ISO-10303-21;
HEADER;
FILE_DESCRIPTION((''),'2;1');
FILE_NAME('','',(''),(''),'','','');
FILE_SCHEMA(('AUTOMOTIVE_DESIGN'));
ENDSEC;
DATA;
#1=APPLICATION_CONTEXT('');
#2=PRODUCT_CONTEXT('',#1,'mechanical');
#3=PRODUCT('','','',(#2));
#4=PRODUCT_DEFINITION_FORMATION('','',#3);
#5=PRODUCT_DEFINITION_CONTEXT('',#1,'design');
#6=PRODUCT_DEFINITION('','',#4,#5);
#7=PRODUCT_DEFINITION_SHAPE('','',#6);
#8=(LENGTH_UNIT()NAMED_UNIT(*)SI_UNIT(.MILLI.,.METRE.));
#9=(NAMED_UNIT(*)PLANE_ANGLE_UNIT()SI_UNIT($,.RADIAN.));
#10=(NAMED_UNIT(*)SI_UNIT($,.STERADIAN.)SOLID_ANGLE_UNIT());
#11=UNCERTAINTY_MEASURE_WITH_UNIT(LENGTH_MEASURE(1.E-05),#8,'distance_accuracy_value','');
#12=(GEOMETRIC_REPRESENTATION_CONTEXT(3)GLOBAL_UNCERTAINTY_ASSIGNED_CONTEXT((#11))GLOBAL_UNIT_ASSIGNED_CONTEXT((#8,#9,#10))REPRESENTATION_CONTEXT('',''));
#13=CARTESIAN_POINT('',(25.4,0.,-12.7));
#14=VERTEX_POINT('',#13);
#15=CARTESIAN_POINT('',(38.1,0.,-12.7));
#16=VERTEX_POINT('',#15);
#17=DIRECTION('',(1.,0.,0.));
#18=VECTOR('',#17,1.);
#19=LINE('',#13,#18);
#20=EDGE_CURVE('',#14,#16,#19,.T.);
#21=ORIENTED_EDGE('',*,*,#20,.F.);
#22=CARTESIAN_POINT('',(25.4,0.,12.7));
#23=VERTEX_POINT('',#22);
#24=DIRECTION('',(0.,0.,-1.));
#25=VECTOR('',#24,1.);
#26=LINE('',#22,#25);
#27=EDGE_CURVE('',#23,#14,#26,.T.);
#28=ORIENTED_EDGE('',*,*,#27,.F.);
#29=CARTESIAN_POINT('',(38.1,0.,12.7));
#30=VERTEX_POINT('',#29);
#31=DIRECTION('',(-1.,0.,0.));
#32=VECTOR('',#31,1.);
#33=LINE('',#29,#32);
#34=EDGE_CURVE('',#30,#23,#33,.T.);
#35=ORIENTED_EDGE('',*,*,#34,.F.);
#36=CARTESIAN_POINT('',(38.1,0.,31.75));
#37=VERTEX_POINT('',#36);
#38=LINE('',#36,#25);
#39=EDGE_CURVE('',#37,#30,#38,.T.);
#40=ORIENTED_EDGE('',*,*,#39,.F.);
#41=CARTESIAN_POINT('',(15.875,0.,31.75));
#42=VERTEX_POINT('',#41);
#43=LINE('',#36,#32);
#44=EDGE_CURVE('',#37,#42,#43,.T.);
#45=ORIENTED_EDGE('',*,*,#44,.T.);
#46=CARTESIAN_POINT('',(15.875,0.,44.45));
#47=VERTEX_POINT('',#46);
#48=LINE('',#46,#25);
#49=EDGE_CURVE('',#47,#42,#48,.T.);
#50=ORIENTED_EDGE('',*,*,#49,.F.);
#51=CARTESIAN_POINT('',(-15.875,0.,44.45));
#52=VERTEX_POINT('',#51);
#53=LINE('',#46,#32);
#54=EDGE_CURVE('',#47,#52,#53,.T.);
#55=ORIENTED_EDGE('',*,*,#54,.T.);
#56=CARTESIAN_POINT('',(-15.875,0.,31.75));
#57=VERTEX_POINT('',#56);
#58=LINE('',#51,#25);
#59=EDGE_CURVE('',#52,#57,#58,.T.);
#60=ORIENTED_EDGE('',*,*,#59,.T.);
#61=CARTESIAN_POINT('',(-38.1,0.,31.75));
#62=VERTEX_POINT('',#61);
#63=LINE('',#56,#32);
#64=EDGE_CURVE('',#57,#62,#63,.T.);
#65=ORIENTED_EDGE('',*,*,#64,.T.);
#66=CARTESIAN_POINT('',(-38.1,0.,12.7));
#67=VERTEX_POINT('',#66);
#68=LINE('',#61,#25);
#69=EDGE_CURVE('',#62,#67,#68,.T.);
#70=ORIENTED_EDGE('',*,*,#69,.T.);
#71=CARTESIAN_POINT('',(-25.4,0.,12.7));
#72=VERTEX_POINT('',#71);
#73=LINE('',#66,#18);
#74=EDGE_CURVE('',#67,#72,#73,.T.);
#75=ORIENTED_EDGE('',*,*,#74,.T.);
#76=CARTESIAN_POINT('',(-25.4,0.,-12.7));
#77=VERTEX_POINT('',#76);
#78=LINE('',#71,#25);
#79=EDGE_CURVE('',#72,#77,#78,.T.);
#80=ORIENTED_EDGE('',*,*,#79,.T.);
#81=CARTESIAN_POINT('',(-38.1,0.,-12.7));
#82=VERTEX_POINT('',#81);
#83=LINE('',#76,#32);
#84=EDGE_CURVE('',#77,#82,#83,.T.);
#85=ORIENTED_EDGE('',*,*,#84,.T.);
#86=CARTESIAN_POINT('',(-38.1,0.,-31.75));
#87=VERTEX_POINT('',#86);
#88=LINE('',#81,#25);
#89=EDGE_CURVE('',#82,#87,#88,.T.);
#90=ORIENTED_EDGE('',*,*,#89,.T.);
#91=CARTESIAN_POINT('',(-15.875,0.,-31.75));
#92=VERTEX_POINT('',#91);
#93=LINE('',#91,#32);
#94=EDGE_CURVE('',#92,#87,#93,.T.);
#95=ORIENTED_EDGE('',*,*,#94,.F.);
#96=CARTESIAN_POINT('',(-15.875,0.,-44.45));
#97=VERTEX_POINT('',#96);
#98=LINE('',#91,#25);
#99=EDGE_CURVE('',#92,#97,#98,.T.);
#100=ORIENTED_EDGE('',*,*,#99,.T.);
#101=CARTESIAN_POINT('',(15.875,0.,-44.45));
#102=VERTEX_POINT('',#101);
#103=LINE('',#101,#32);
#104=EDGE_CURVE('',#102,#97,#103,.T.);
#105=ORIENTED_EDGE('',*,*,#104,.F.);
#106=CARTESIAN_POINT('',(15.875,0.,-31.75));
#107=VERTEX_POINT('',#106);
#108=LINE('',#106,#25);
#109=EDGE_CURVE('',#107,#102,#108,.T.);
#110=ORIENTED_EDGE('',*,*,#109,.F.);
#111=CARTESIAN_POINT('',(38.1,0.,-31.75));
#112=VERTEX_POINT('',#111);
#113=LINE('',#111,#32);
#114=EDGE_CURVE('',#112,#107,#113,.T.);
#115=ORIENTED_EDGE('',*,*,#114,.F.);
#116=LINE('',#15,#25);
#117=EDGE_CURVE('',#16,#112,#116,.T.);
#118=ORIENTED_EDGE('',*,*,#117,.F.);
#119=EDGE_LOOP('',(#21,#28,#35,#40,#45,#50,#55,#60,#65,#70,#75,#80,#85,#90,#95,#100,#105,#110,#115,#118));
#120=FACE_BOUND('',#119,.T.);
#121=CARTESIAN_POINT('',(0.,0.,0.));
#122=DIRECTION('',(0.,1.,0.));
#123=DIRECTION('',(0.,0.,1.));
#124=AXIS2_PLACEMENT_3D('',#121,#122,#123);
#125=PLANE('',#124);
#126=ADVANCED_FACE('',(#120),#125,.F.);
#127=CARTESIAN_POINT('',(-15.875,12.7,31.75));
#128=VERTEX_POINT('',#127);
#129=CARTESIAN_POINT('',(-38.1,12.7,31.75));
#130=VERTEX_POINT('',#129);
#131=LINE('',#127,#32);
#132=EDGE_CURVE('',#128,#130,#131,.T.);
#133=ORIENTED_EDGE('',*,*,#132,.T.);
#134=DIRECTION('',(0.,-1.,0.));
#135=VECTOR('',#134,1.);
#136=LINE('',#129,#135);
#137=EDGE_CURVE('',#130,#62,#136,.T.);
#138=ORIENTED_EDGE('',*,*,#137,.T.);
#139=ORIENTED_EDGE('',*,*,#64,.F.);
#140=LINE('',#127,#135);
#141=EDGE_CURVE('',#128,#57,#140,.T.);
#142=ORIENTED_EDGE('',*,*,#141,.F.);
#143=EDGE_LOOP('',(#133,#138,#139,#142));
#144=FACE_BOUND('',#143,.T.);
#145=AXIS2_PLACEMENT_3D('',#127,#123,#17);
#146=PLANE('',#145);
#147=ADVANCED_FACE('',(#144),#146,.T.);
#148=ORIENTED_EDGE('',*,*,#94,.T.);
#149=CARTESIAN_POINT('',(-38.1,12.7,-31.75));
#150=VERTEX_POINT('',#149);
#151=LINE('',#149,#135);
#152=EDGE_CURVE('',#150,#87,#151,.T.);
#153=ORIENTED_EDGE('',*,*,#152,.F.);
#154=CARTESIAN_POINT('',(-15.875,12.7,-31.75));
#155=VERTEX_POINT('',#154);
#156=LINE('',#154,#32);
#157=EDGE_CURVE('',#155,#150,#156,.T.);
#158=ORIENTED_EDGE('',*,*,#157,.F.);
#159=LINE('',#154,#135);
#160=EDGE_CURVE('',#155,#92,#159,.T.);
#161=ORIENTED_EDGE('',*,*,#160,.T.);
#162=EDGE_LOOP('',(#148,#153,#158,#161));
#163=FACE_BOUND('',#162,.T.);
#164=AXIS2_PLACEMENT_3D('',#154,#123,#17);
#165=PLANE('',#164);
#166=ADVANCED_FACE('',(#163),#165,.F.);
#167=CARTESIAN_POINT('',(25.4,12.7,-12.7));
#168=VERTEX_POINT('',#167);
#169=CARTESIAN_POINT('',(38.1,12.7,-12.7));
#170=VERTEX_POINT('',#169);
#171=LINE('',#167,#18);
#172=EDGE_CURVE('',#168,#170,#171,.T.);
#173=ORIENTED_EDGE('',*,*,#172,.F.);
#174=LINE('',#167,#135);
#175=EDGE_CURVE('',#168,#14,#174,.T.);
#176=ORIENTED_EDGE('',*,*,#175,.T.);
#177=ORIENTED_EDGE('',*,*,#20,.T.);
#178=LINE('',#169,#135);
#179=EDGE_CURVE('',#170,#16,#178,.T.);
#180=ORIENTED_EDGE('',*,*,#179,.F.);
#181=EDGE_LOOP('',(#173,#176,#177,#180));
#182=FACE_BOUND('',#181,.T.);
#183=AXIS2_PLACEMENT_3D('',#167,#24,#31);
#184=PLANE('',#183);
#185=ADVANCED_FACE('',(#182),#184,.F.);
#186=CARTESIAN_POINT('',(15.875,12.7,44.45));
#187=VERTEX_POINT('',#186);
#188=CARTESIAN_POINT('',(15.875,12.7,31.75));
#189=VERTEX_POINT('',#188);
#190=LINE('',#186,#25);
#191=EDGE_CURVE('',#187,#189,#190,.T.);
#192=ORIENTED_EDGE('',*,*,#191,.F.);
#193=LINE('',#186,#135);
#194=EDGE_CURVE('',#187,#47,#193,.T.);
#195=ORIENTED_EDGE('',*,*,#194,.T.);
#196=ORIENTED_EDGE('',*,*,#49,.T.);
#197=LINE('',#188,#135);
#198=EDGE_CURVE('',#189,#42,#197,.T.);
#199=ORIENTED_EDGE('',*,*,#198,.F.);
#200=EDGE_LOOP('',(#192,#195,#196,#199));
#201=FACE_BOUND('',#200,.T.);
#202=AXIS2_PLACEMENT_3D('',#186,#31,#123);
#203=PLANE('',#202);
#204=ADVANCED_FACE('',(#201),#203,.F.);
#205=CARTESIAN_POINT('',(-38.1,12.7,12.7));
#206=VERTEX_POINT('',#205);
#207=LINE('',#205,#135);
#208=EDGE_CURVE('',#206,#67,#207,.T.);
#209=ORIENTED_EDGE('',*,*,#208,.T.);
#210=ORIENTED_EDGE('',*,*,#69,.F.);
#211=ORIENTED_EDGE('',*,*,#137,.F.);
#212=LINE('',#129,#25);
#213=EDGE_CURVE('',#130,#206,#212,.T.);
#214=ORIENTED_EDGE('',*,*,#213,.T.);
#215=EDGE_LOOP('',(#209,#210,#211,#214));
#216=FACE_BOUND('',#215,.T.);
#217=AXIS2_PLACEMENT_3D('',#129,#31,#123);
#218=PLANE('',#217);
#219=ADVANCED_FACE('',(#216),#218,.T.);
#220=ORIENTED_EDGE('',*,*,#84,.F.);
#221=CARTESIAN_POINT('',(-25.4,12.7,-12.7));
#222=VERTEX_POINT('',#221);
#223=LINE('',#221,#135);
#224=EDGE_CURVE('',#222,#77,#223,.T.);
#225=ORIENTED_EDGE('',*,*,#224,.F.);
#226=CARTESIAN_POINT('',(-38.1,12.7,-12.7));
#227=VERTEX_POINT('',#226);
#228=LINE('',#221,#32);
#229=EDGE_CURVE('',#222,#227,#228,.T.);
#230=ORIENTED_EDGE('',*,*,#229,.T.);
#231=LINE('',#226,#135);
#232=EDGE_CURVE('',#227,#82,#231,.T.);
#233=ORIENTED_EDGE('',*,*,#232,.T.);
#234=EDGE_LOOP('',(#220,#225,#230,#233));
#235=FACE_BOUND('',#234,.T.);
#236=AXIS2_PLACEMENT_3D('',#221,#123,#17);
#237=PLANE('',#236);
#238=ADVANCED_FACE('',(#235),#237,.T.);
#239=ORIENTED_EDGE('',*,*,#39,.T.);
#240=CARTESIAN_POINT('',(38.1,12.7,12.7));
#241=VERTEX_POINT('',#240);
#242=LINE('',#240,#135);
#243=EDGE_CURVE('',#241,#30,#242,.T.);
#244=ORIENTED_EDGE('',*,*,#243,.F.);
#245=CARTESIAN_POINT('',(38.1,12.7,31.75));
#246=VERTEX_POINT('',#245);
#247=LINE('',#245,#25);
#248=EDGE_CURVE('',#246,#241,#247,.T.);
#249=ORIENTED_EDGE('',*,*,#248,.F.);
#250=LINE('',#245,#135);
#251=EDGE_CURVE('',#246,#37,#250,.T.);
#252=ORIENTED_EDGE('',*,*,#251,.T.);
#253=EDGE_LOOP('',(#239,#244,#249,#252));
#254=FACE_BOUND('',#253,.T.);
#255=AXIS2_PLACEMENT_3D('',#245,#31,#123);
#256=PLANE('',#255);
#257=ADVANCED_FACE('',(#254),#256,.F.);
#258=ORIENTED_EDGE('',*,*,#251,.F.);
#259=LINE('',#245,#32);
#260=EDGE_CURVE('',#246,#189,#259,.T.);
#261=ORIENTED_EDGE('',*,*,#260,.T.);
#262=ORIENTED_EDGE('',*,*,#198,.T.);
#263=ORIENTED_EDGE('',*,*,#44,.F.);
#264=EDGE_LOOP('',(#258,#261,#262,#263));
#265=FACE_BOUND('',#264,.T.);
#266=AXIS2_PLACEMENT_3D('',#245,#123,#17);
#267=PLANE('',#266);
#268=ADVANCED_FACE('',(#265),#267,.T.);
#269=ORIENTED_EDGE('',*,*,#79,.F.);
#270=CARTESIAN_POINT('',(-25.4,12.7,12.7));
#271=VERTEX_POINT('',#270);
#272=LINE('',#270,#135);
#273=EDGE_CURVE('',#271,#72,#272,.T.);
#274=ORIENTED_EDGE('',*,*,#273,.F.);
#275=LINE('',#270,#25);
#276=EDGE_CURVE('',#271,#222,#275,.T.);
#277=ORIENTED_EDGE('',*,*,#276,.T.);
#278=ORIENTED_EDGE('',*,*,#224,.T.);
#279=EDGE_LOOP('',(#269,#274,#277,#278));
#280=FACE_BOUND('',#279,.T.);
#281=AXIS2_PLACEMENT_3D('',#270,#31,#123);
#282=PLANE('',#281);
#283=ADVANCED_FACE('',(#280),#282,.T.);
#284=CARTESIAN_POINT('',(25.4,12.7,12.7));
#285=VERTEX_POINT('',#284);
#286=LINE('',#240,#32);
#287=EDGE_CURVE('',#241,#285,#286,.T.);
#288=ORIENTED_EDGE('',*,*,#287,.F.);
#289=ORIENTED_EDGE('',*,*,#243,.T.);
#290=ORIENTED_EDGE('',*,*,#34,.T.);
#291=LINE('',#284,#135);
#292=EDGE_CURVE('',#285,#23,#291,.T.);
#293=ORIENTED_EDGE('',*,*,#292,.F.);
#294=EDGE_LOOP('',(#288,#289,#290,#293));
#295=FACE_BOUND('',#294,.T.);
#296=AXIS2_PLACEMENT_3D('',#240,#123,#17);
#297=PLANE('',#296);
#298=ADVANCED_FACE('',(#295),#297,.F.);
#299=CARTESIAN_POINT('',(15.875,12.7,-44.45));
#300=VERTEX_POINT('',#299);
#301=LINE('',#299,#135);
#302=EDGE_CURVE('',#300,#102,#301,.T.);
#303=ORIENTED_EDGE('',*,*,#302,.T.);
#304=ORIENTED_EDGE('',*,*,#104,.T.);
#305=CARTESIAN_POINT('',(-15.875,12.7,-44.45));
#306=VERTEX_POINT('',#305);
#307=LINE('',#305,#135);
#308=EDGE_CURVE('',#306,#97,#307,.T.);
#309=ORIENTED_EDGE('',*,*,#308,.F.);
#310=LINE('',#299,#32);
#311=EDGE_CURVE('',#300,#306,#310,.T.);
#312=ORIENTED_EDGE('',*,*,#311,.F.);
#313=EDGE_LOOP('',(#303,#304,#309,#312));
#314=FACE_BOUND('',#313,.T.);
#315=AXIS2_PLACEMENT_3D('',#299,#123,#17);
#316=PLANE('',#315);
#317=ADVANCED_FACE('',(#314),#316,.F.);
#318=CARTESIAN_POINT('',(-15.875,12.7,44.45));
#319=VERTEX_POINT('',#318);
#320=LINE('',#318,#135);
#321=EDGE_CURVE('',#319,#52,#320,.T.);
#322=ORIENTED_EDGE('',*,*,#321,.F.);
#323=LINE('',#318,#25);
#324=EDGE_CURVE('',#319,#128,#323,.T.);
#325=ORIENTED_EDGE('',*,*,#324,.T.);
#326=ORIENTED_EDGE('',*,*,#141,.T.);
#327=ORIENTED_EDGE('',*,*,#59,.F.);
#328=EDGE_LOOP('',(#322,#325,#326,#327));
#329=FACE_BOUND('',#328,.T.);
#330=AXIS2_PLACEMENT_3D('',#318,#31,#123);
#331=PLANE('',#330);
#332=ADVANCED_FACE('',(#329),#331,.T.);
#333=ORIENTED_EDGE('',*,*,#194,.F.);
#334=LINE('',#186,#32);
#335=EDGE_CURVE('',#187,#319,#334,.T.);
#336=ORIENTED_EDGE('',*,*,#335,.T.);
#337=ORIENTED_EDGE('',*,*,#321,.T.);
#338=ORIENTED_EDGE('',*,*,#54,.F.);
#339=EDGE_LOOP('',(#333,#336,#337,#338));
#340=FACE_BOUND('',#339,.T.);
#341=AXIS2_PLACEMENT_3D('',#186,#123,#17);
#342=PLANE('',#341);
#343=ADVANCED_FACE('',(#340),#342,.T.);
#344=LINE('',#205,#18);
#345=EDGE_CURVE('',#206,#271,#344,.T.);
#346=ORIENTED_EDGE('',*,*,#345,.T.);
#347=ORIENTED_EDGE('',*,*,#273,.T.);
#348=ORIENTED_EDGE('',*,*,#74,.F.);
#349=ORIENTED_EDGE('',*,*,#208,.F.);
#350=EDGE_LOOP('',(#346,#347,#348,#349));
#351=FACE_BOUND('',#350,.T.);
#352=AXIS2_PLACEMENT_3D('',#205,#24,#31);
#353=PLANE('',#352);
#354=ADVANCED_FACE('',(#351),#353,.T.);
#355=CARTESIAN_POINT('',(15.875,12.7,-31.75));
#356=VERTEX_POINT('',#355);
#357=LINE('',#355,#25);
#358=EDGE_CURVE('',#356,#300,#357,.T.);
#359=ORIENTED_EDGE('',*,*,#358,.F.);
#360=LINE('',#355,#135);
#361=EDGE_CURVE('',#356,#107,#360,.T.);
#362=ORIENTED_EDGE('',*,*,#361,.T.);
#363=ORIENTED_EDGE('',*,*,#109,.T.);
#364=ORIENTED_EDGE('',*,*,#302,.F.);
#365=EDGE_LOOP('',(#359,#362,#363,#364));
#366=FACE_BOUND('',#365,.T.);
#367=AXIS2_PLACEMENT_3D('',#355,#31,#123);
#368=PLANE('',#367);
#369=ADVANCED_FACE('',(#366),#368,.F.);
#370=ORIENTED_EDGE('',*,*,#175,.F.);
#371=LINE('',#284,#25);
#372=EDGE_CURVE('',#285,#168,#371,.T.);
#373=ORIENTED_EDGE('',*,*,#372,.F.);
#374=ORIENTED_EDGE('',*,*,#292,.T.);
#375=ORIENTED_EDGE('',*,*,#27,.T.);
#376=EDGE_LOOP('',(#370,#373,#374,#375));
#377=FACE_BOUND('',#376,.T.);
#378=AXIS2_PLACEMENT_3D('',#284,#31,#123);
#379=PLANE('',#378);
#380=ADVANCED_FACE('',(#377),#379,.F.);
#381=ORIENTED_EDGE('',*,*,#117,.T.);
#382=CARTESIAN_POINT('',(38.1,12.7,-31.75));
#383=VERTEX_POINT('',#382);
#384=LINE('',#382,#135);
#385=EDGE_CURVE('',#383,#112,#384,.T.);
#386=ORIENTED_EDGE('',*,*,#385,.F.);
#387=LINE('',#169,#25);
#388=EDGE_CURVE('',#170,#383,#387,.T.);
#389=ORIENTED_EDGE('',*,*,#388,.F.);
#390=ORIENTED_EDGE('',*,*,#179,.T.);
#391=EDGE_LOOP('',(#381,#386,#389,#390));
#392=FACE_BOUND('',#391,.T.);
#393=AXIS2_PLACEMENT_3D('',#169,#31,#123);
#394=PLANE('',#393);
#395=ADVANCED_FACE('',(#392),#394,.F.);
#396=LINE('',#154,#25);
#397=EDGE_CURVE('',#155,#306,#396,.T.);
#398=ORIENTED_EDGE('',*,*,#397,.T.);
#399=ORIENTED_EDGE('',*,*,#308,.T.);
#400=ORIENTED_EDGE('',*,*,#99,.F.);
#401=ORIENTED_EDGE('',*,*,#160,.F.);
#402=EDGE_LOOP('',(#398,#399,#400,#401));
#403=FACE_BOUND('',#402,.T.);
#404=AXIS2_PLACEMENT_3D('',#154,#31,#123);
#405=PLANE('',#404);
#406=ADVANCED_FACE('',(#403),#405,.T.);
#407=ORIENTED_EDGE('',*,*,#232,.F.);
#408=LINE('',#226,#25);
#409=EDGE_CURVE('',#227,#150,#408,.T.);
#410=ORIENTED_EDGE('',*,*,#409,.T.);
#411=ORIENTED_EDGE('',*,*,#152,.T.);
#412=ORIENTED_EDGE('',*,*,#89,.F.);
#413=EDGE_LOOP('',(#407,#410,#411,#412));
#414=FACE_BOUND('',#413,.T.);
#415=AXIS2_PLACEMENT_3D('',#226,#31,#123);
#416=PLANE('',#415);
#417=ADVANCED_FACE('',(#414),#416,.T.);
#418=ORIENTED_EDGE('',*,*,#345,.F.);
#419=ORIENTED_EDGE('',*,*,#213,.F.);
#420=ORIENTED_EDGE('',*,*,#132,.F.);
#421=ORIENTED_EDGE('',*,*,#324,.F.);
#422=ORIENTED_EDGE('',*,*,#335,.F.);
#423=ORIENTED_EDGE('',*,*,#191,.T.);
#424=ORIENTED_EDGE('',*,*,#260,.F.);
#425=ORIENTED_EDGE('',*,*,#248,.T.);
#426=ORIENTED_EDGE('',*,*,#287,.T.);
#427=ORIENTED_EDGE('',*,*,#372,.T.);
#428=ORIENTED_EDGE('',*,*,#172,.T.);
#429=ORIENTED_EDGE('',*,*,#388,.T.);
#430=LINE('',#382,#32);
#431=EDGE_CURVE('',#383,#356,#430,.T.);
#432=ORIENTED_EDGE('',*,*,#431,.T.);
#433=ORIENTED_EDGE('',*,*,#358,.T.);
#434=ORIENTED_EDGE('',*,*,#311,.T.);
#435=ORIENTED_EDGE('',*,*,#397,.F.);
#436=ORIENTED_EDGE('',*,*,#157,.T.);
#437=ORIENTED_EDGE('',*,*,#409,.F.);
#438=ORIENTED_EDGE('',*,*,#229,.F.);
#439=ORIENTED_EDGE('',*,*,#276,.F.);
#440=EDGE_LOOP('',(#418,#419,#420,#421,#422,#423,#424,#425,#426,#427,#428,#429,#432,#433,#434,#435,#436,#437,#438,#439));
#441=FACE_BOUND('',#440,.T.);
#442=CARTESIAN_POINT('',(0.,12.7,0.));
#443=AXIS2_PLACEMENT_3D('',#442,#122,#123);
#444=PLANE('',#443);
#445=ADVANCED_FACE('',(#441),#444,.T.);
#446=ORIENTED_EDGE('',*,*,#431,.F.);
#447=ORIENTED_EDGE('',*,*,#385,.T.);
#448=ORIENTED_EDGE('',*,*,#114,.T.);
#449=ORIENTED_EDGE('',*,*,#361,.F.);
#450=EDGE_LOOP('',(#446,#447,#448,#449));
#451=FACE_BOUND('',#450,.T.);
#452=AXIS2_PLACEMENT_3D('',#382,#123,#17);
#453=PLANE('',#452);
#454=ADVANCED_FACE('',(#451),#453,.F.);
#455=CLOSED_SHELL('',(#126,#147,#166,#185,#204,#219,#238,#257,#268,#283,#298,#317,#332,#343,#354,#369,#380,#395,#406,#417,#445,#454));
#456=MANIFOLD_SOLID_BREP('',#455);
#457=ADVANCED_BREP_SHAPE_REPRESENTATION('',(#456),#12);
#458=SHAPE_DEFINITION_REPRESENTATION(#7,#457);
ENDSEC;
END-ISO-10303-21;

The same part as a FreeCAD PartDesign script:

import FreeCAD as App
import Part
import Sketcher
from FreeCAD import Vector
Q = App.Units.Quantity

doc = App.newDocument("Part")
body = doc.addObject("PartDesign::Body", "Body")

sketch1 = body.newObject("Sketcher::SketchObject", "Sketch")
sketch1.AttachmentSupport = (doc.getObject("XZ_Plane"), [""])
sketch1.MapMode = "FlatFace"
sketch1.addGeometry([
    Part.LineSegment(Vector(-38.1, 31.75, 0), Vector(-15.875, 31.75, 0)),
    Part.LineSegment(Vector(-15.875, 31.75, 0), Vector(-15.875, 44.45, 0)),
    Part.LineSegment(Vector(-15.875, 44.45, 0), Vector(15.875, 44.45, 0)),
    Part.LineSegment(Vector(15.875, 44.45, 0), Vector(15.875, 31.75, 0)),
    Part.LineSegment(Vector(15.875, 31.75, 0), Vector(38.1, 31.75, 0)),
    Part.LineSegment(Vector(38.1, 31.75, 0), Vector(38.1, 12.7, 0)),
    Part.LineSegment(Vector(38.1, 12.7, 0), Vector(25.4, 12.7, 0)),
    Part.LineSegment(Vector(25.4, 12.7, 0), Vector(25.4, -12.7, 0)),
    Part.LineSegment(Vector(25.4, -12.7, 0), Vector(38.1, -12.7, 0)),
    Part.LineSegment(Vector(38.1, -12.7, 0), Vector(38.1, -31.75, 0)),
    Part.LineSegment(Vector(38.1, -31.75, 0), Vector(15.875, -31.75, 0)),
    Part.LineSegment(Vector(15.875, -31.75, 0), Vector(15.875, -44.45, 0)),
    Part.LineSegment(Vector(15.875, -44.45, 0), Vector(-15.875, -44.45, 0)),
    Part.LineSegment(Vector(-15.875, -44.45, 0), Vector(-15.875, -31.75, 0)),
    Part.LineSegment(Vector(-15.875, -31.75, 0), Vector(-38.1, -31.75, 0)),
    Part.LineSegment(Vector(-38.1, -31.75, 0), Vector(-38.1, -12.7, 0)),
    Part.LineSegment(Vector(-38.1, -12.7, 0), Vector(-25.4, -12.7, 0)),
    Part.LineSegment(Vector(-25.4, -12.7, 0), Vector(-25.4, 12.7, 0)),
    Part.LineSegment(Vector(-25.4, 12.7, 0), Vector(-38.1, 12.7, 0)),
    Part.LineSegment(Vector(-38.1, 12.7, 0), Vector(-38.1, 31.75, 0)),
], False)
sketch1.addConstraint([
    Sketcher.Constraint("Coincident", 0, 2, 1, 1),
    Sketcher.Constraint("Coincident", 1, 2, 2, 1),
    Sketcher.Constraint("Coincident", 2, 2, 3, 1),
    Sketcher.Constraint("Coincident", 3, 2, 4, 1),
    Sketcher.Constraint("Coincident", 4, 2, 5, 1),
    Sketcher.Constraint("Coincident", 5, 2, 6, 1),
    Sketcher.Constraint("Coincident", 6, 2, 7, 1),
    Sketcher.Constraint("Coincident", 7, 2, 8, 1),
    Sketcher.Constraint("Coincident", 8, 2, 9, 1),
    Sketcher.Constraint("Coincident", 9, 2, 10, 1),
    Sketcher.Constraint("Coincident", 10, 2, 11, 1),
    Sketcher.Constraint("Coincident", 11, 2, 12, 1),
    Sketcher.Constraint("Coincident", 12, 2, 13, 1),
    Sketcher.Constraint("Coincident", 13, 2, 14, 1),
    Sketcher.Constraint("Coincident", 14, 2, 15, 1),
    Sketcher.Constraint("Coincident", 15, 2, 16, 1),
    Sketcher.Constraint("Coincident", 16, 2, 17, 1),
    Sketcher.Constraint("Coincident", 17, 2, 18, 1),
    Sketcher.Constraint("Coincident", 18, 2, 19, 1),
    Sketcher.Constraint("Coincident", 19, 2, 0, 1),
    Sketcher.Constraint("Horizontal", 0),
    Sketcher.Constraint("Vertical", 1),
    Sketcher.Constraint("Horizontal", 2),
    Sketcher.Constraint("Vertical", 3),
    Sketcher.Constraint("Horizontal", 4),
    Sketcher.Constraint("Vertical", 5),
    Sketcher.Constraint("Horizontal", 6),
    Sketcher.Constraint("Vertical", 7),
    Sketcher.Constraint("Horizontal", 8),
    Sketcher.Constraint("Vertical", 9),
    Sketcher.Constraint("Horizontal", 10),
    Sketcher.Constraint("Vertical", 11),
    Sketcher.Constraint("Horizontal", 12),
    Sketcher.Constraint("Vertical", 13),
    Sketcher.Constraint("Horizontal", 14),
    Sketcher.Constraint("Vertical", 15),
    Sketcher.Constraint("Horizontal", 16),
    Sketcher.Constraint("Vertical", 17),
    Sketcher.Constraint("Horizontal", 18),
    Sketcher.Constraint("Vertical", 19),
    Sketcher.Constraint("Symmetric", 0, 2, 10, 2, -1, 1),
    Sketcher.Constraint("Symmetric", 2, 2, 12, 2, -1, 1),
    Sketcher.Constraint("Symmetric", 4, 2, 14, 2, -1, 1),
    Sketcher.Constraint("Symmetric", 6, 2, 16, 2, -1, 1),
    Sketcher.Constraint("Symmetric", 8, 2, 18, 2, -1, 1),
    Sketcher.Constraint("Symmetric", 0, 2, 3, 2, -2),
    Sketcher.Constraint("Symmetric", 8, 2, 15, 2, -2),
    Sketcher.Constraint("Equal", 18, 1),
    Sketcher.Constraint("DistanceY", 7, 2, 7, 1, Q("1 in")),
    Sketcher.Constraint("DistanceX", 6, 2, 6, 1, Q("0.5 in")),
    Sketcher.Constraint("DistanceX", -1, 1, 6, 2, Q("1 in")),
    Sketcher.Constraint("DistanceX", 2, 1, 2, 2, Q("1.25 in")),
    Sketcher.Constraint("DistanceY", 5, 2, 5, 1, Q("0.75 in")),
])
pad1 = body.newObject("PartDesign::Pad", "Pad")
pad1.Profile = sketch1
pad1.Length = Q("0.5 in")
pad1.Reversed = True

doc.recompute()
